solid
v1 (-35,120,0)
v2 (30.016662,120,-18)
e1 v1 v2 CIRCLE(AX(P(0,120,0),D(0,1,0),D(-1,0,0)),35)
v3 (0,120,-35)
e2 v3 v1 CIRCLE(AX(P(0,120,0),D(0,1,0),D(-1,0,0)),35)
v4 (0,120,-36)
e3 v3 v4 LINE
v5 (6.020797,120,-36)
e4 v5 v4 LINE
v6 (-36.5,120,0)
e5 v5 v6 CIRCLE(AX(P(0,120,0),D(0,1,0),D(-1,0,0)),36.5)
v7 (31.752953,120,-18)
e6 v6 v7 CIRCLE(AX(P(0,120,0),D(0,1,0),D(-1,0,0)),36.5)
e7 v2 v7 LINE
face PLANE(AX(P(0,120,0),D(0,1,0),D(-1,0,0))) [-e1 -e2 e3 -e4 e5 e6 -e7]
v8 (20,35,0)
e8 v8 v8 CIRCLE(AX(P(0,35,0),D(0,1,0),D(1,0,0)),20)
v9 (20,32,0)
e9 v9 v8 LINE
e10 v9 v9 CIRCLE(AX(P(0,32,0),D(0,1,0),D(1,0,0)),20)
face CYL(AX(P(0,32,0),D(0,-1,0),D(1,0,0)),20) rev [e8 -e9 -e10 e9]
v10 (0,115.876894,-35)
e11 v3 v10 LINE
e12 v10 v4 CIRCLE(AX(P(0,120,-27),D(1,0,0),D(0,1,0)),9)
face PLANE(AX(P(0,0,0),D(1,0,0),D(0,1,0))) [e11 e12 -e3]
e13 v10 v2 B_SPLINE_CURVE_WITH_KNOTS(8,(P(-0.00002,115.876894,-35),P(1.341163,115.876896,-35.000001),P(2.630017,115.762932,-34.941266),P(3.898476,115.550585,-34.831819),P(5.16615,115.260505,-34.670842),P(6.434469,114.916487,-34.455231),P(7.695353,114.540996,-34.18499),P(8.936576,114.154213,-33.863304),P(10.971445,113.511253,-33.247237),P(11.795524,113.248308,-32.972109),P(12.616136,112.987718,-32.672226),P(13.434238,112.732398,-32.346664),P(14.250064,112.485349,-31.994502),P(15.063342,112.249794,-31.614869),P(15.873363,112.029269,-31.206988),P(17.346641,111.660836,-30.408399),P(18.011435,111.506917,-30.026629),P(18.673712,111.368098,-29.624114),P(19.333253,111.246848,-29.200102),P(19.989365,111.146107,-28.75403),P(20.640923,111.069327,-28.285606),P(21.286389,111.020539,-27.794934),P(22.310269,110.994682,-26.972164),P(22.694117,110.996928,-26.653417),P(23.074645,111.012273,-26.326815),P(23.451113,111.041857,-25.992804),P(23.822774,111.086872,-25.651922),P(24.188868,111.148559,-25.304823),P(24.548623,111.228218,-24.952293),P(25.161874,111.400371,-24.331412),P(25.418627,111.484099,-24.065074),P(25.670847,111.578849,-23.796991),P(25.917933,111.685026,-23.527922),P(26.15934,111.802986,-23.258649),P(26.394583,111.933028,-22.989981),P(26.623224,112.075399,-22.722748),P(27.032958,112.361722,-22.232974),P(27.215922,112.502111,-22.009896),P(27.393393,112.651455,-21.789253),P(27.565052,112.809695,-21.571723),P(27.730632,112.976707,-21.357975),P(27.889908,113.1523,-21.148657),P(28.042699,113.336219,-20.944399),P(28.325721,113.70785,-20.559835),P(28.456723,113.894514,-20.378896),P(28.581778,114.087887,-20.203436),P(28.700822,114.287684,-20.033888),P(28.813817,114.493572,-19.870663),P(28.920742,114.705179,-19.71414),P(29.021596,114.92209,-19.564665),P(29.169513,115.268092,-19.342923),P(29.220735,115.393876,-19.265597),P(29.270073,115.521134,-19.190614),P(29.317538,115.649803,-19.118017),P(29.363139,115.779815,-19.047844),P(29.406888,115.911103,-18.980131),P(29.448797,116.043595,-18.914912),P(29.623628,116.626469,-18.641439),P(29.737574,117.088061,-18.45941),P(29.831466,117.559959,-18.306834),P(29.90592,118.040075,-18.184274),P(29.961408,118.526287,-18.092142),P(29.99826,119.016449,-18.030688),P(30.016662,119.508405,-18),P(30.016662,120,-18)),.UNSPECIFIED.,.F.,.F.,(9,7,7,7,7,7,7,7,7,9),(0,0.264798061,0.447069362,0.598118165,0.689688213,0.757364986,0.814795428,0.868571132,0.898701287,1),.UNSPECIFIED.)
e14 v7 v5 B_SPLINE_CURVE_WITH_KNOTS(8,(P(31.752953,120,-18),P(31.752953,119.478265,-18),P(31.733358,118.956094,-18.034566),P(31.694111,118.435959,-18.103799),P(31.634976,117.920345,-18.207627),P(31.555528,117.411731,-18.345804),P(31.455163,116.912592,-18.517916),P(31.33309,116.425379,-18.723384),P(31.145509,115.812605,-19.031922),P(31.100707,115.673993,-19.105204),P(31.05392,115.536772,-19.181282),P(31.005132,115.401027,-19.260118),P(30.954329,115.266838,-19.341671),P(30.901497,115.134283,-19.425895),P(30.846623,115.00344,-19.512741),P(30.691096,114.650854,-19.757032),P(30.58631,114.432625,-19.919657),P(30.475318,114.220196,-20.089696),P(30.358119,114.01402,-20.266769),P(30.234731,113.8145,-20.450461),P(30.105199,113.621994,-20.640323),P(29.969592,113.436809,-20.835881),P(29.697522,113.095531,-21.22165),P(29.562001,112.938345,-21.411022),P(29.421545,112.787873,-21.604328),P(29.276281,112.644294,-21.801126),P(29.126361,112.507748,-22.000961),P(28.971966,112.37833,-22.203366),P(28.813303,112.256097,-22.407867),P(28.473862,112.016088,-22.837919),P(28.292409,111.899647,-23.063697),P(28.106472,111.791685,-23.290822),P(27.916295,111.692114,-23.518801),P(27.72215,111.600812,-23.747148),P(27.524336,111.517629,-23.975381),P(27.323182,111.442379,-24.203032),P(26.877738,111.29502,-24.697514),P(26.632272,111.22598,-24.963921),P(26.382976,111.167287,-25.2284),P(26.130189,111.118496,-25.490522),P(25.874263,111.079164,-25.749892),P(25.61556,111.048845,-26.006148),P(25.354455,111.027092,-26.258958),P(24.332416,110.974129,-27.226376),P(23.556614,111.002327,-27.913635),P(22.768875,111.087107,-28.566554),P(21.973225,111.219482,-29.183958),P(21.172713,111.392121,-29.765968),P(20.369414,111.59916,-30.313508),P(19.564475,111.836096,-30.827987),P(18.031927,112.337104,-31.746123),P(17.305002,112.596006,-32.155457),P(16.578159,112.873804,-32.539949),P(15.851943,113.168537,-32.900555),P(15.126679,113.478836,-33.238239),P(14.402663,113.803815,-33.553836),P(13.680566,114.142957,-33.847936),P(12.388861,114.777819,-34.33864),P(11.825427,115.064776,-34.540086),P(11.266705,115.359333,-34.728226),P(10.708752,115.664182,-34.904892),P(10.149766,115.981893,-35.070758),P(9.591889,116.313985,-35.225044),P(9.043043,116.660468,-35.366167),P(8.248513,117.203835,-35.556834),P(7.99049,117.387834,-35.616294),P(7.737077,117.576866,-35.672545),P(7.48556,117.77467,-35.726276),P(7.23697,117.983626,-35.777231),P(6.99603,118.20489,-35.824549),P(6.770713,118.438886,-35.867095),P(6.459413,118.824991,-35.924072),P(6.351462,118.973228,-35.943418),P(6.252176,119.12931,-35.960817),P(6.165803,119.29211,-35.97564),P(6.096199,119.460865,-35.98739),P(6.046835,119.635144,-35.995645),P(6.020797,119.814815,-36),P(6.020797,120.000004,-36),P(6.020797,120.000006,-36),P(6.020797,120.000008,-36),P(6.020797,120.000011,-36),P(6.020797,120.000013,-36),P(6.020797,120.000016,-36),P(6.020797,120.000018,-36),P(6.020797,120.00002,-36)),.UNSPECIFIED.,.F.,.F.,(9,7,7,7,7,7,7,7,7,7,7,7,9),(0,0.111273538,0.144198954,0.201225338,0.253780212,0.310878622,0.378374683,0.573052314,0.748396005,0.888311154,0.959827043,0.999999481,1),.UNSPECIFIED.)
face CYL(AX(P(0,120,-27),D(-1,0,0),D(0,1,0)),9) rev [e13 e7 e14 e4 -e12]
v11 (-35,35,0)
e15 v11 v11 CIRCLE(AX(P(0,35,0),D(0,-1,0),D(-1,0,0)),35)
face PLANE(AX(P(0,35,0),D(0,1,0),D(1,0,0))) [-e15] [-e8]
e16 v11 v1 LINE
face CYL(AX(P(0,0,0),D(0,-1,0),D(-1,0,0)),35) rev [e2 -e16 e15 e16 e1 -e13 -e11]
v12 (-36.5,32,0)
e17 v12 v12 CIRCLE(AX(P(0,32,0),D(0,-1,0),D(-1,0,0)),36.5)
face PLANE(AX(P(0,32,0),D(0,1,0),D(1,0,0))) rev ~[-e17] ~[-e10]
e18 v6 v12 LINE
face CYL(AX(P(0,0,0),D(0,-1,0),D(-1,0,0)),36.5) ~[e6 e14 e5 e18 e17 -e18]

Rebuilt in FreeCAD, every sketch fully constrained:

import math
import FreeCAD as App
import Part
import Sketcher
from FreeCAD import Vector

doc = App.newDocument("Part")
body = doc.addObject("PartDesign::Body", "Body")

sketch1 = doc.addObject("Sketcher::SketchObject", "Sketch")
body.addObject(sketch1)
sketch1.AttachmentSupport = (doc.XZ_Plane, [""])
sketch1.MapMode = "FlatFace"
sketch1.addGeometry(Part.Circle(Vector(0, 0, 0), Vector(0, 0, 1), 36), False)
sketch1.addConstraint([
    Sketcher.Constraint("Coincident", 0, 3, -1, 1),
    Sketcher.Constraint("Diameter", 0, 73.0),
])
pad1 = doc.addObject("PartDesign::Pad", "Pad")
body.addObject(pad1)
pad1.Profile = sketch1
pad1.Length = 3
pad1.Reversed = True

sketch2 = doc.addObject("Sketcher::SketchObject", "Sketch001")
body.addObject(sketch2)
sketch2.AttachmentSupport = (doc.XZ_Plane, [""])
sketch2.MapMode = "FlatFace"
sketch2.addGeometry([
    Part.Circle(Vector(0, 0, 0), Vector(0, 0, 1), 36),
    Part.Circle(Vector(0, 0, 0), Vector(0, 0, 1), 35),
], False)
sketch2.addConstraint([
    Sketcher.Constraint("Coincident", 0, 3, -1, 1),
    Sketcher.Constraint("Coincident", 1, 3, -1, 1),
    Sketcher.Constraint("Diameter", 0, 73.0),
    Sketcher.Constraint("Diameter", 1, 70.0),
])
pad2 = doc.addObject("PartDesign::Pad", "Pad001")
body.addObject(pad2)
pad2.Profile = sketch2
pad2.Length = 120
pad2.Reversed = True

sketch3 = doc.addObject("Sketcher::SketchObject", "Sketch002")
body.addObject(sketch3)
sketch3.AttachmentSupport = (doc.XZ_Plane, [""])
sketch3.MapMode = "FlatFace"
sketch3.AttachmentOffset = App.Placement(Vector(0, 0, -3), App.Rotation())
sketch3.addGeometry([
    Part.LineSegment(Vector(25, 25, 0), Vector(25, -25, 0)),
    Part.LineSegment(Vector(25, -25, 0), Vector(-25, -25, 0)),
    Part.LineSegment(Vector(-25, -25, 0), Vector(-25, 25, 0)),
    Part.LineSegment(Vector(-25, 25, 0), Vector(25, 25, 0)),
], False)
sketch3.addConstraint([
    Sketcher.Constraint("Coincident", 0, 2, 1, 1),
    Sketcher.Constraint("Coincident", 1, 2, 2, 1),
    Sketcher.Constraint("Coincident", 2, 2, 3, 1),
    Sketcher.Constraint("Coincident", 3, 2, 0, 1),
    Sketcher.Constraint("Vertical", 0),
    Sketcher.Constraint("Horizontal", 1),
    Sketcher.Constraint("Vertical", 2),
    Sketcher.Constraint("Horizontal", 3),
    Sketcher.Constraint("Symmetric", 0, 2, 2, 2, -1, 1),
    Sketcher.Constraint("Equal", 3, 0),
    Sketcher.Constraint("DistanceX", 1, 2, 1, 1, 49.4974),
])
pad3 = doc.addObject("PartDesign::Pad", "Pad002")
body.addObject(pad3)
pad3.Profile = sketch3
pad3.Length = 2
pad3.Reversed = True

sketch4 = doc.addObject("Sketcher::SketchObject", "Sketch003")
body.addObject(sketch4)
sketch4.AttachmentSupport = (doc.XZ_Plane, [""])
sketch4.MapMode = "FlatFace"
sketch4.AttachmentOffset = App.Placement(Vector(0, 0, -5), App.Rotation())
sketch4.addGeometry([
    Part.LineSegment(Vector(-21.1, 23.1, 0), Vector(21.1, 23.1, 0)),
    Part.ArcOfCircle(Part.Circle(Vector(21.1, 21.1, 0), Vector(0, 0, 1), 2), math.radians(0), math.radians(90)),
    Part.LineSegment(Vector(23.1, 21.1, 0), Vector(23.1, -21.1, 0)),
    Part.ArcOfCircle(Part.Circle(Vector(21.1, -21.1, 0), Vector(0, 0, 1), 2), math.radians(-90), math.radians(0)),
    Part.LineSegment(Vector(21.1, -23.1, 0), Vector(-21.1, -23.1, 0)),
    Part.ArcOfCircle(Part.Circle(Vector(-21.1, -21.1, 0), Vector(0, 0, 1), 2), math.radians(180), math.radians(270)),
    Part.LineSegment(Vector(-23.1, -21.1, 0), Vector(-23.1, 21.1, 0)),
    Part.ArcOfCircle(Part.Circle(Vector(-21.1, 21.1, 0), Vector(0, 0, 1), 2), math.radians(90), math.radians(180)),
], False)
sketch4.addConstraint([
    Sketcher.Constraint("Tangent", 0, 2, 1, 2),
    Sketcher.Constraint("Tangent", 1, 1, 2, 1),
    Sketcher.Constraint("Tangent", 2, 2, 3, 2),
    Sketcher.Constraint("Tangent", 3, 1, 4, 1),
    Sketcher.Constraint("Tangent", 4, 2, 5, 2),
    Sketcher.Constraint("Tangent", 5, 1, 6, 1),
    Sketcher.Constraint("Tangent", 6, 2, 7, 2),
    Sketcher.Constraint("Tangent", 7, 1, 0, 1),
    Sketcher.Constraint("Horizontal", 0),
    Sketcher.Constraint("Vertical", 2),
    Sketcher.Constraint("Horizontal", 4),
    Sketcher.Constraint("Vertical", 6),
    Sketcher.Constraint("Equal", 1, 3),
    Sketcher.Constraint("Equal", 3, 5),
    Sketcher.Constraint("Equal", 5, 7),
    Sketcher.Constraint("Symmetric", 1, 3, 5, 3, -1, 1),
    Sketcher.Constraint("Equal", 4, 2),
    Sketcher.Constraint("Radius", 1, 2.0),
    Sketcher.Constraint("DistanceX", 0, 1, 0, 2, 42.2),
])
pocket1 = doc.addObject("PartDesign::Pocket", "Pocket")
body.addObject(pocket1)
pocket1.Profile = sketch4
pocket1.Length = 2
pocket1.Reversed = True

sketch5 = doc.addObject("Sketcher::SketchObject", "Sketch004")
body.addObject(sketch5)
sketch5.AttachmentSupport = (doc.YZ_Plane, [""])
sketch5.MapMode = "FlatFace"
sketch5.addGeometry(Part.Circle(Vector(120, -27, 0), Vector(0, 0, 1), 9), False)
sketch5.addConstraint([
    Sketcher.Constraint("Diameter", 0, 18.0),
    Sketcher.Constraint("DistanceX", -1, 1, 0, 3, 120.0),
    Sketcher.Constraint("DistanceY", 0, 3, -1, 1, 27.0),
])
pocket2 = doc.addObject("PartDesign::Pocket", "Pocket001")
body.addObject(pocket2)
pocket2.Profile = sketch5
pocket2.Type = "ThroughAll"
pocket2.Reversed = True

sketch6 = doc.addObject("Sketcher::SketchObject", "Sketch005")
body.addObject(sketch6)
sketch6.AttachmentSupport = (doc.XZ_Plane, [""])
sketch6.MapMode = "FlatFace"
sketch6.addGeometry([
    Part.ArcOfCircle(Part.Circle(Vector(0, 0, 0), Vector(0, 0, 1), 36.5), math.radians(-82.13), math.radians(-77.34)),
    Part.LineSegment(Vector(5, -36.2, 0), Vector(5, -42.4, 0)),
    Part.ArcOfCircle(Part.Circle(Vector(0, -42.4, 0), Vector(0, 0, 1), 5), math.radians(180), math.radians(360)),
    Part.LineSegment(Vector(-5, -42.4, 0), Vector(-5, -36.2, 0)),
    Part.ArcOfCircle(Part.Circle(Vector(0, 0, 0), Vector(0, 0, 1), 36.5), math.radians(-102.66), math.radians(-97.87)),
    Part.LineSegment(Vector(-8, -35.6, 0), Vector(-8, -42.4, 0)),
    Part.ArcOfCircle(Part.Circle(Vector(0, -42.4, 0), Vector(0, 0, 1), 8), math.radians(180), math.radians(360)),
    Part.LineSegment(Vector(8, -42.4, 0), Vector(8, -35.6, 0)),
], False)
sketch6.addConstraint([
    Sketcher.Constraint("Coincident", 0, 1, 1, 1),
    Sketcher.Constraint("Tangent", 1, 2, 2, 2),
    Sketcher.Constraint("Tangent", 2, 1, 3, 1),
    Sketcher.Constraint("Coincident", 3, 2, 4, 2),
    Sketcher.Constraint("Coincident", 4, 1, 5, 1),
    Sketcher.Constraint("Tangent", 5, 2, 6, 1),
    Sketcher.Constraint("Tangent", 6, 2, 7, 1),
    Sketcher.Constraint("Coincident", 7, 2, 0, 2),
    Sketcher.Constraint("Vertical", 1),
    Sketcher.Constraint("Vertical", 3),
    Sketcher.Constraint("Vertical", 5),
    Sketcher.Constraint("Vertical", 7),
    Sketcher.Constraint("Coincident", 0, 3, -1, 1),
    Sketcher.Constraint("Coincident", 4, 3, -1, 1),
    Sketcher.Constraint("Coincident", 6, 3, 2, 3),
    Sketcher.Constraint("Equal", 0, 4),
    Sketcher.Constraint("PointOnObject", 2, 3, -2),
    Sketcher.Constraint("Radius", 2, 5.0),
    Sketcher.Constraint("Radius", 6, 8.0),
    Sketcher.Constraint("Radius", 0, 36.5),
    Sketcher.Constraint("DistanceY", 5, 2, 5, 1, 6.8),
])
pad4 = doc.addObject("PartDesign::Pad", "Pad003")
body.addObject(pad4)
pad4.Profile = sketch6
pad4.Length = 6
pad4.Reversed = True

sketch7 = doc.addObject("Sketcher::SketchObject", "Sketch006")
body.addObject(sketch7)
sketch7.AttachmentSupport = (doc.YZ_Plane, [""])
sketch7.MapMode = "FlatFace"
sketch7.AttachmentOffset = App.Placement(Vector(0, 0, 36.5), App.Rotation())
sketch7.addGeometry([
    Part.LineSegment(Vector(22, 4, 0), Vector(8, 4, 0)),
    Part.LineSegment(Vector(8, 4, 0), Vector(8, -4, 0)),
    Part.LineSegment(Vector(8, -4, 0), Vector(22, -4, 0)),
    Part.LineSegment(Vector(22, -4, 0), Vector(22, 4, 0)),
], False)
sketch7.addConstraint([
    Sketcher.Constraint("Coincident", 0, 2, 1, 1),
    Sketcher.Constraint("Coincident", 1, 2, 2, 1),
    Sketcher.Constraint("Coincident", 2, 2, 3, 1),
    Sketcher.Constraint("Coincident", 3, 2, 0, 1),
    Sketcher.Constraint("Horizontal", 0),
    Sketcher.Constraint("Vertical", 1),
    Sketcher.Constraint("Horizontal", 2),
    Sketcher.Constraint("Vertical", 3),
    Sketcher.Constraint("DistanceX", 0, 2, 0, 1, 13.1),
    Sketcher.Constraint("DistanceY", 1, 2, 1, 1, 8.5),
    Sketcher.Constraint("DistanceX", -1, 1, 0, 2, 8.45),
    Sketcher.Constraint("DistanceY", -1, 1, 0, 2, 4.25),
])
pocket3 = doc.addObject("PartDesign::Pocket", "Pocket002")
body.addObject(pocket3)
pocket3.Profile = sketch7
pocket3.Length = 3

sketch8 = doc.addObject("Sketcher::SketchObject", "Sketch007")
body.addObject(sketch8)
sketch8.AttachmentSupport = (doc.YZ_Plane, [""])
sketch8.MapMode = "FlatFace"
sketch8.AttachmentOffset = App.Placement(Vector(0, 0, 36.5), App.Rotation())
sketch8.addGeometry([
    Part.LineSegment(Vector(22, 5, 0), Vector(8, 5, 0)),
    Part.LineSegment(Vector(8, 5, 0), Vector(8, -5, 0)),
    Part.LineSegment(Vector(8, -5, 0), Vector(22, -5, 0)),
    Part.LineSegment(Vector(22, -5, 0), Vector(22, 5, 0)),
    Part.LineSegment(Vector(8, -4, 0), Vector(8, 4, 0)),
    Part.LineSegment(Vector(8, 4, 0), Vector(22, 4, 0)),
    Part.LineSegment(Vector(22, 4, 0), Vector(22, -4, 0)),
    Part.LineSegment(Vector(22, -4, 0), Vector(8, -4, 0)),
], False)
sketch8.addConstraint([
    Sketcher.Constraint("Coincident", 0, 2, 1, 1),
    Sketcher.Constraint("Coincident", 1, 2, 2, 1),
    Sketcher.Constraint("Coincident", 2, 2, 3, 1),
    Sketcher.Constraint("Coincident", 3, 2, 0, 1),
    Sketcher.Constraint("Coincident", 4, 2, 5, 1),
    Sketcher.Constraint("Coincident", 5, 2, 6, 1),
    Sketcher.Constraint("Coincident", 6, 2, 7, 1),
    Sketcher.Constraint("Coincident", 7, 2, 4, 1),
    Sketcher.Constraint("Horizontal", 0),
    Sketcher.Constraint("Vertical", 1),
    Sketcher.Constraint("Horizontal", 2),
    Sketcher.Constraint("Vertical", 3),
    Sketcher.Constraint("Vertical", 4),
    Sketcher.Constraint("Horizontal", 5),
    Sketcher.Constraint("Vertical", 6),
    Sketcher.Constraint("Horizontal", 7),
    Sketcher.Constraint("DistanceX", 0, 2, 0, 1, 15.0),
    Sketcher.Constraint("DistanceX", 5, 1, 5, 2, 13.1),
    Sketcher.Constraint("DistanceY", 1, 2, 1, 1, 10.5),
    Sketcher.Constraint("DistanceY", 4, 1, 4, 2, 8.5),
    Sketcher.Constraint("DistanceY", 4, 2, 0, 2, 1.0),
    Sketcher.Constraint("DistanceX", -1, 1, 0, 2, 7.5),
    Sketcher.Constraint("DistanceY", -1, 1, 0, 2, 5.25),
    Sketcher.Constraint("DistanceX", -1, 1, 4, 2, 8.45),
])
pocket4 = doc.addObject("PartDesign::Pocket", "Pocket003")
body.addObject(pocket4)
pocket4.Profile = sketch8
pocket4.Length = 1

sketch9 = doc.addObject("Sketcher::SketchObject", "Sketch008")
body.addObject(sketch9)
sketch9.AttachmentSupport = (doc.XZ_Plane, [""])
sketch9.MapMode = "FlatFace"
sketch9.AttachmentOffset = App.Placement(Vector(0, 0, -32), App.Rotation())
sketch9.addGeometry([
    Part.Circle(Vector(0, 0, 0), Vector(0, 0, 1), 35),
    Part.Circle(Vector(0, 0, 0), Vector(0, 0, 1), 20),
], False)
sketch9.addConstraint([
    Sketcher.Constraint("Coincident", 0, 3, -1, 1),
    Sketcher.Constraint("Coincident", 1, 3, -1, 1),
    Sketcher.Constraint("Diameter", 1, 40.0),
    Sketcher.Constraint("Diameter", 0, 70.0),
])
pad5 = doc.addObject("PartDesign::Pad", "Pad004")
body.addObject(pad5)
pad5.Profile = sketch9
pad5.Length = 3
pad5.Reversed = True

sketch10 = doc.addObject("Sketcher::SketchObject", "Sketch009")
body.addObject(sketch10)
sketch10.AttachmentSupport = (doc.XZ_Plane, [""])
sketch10.MapMode = "FlatFace"
sketch10.AttachmentOffset = App.Placement(Vector(0, 0, -32), App.Rotation())
sketch10.addGeometry(Part.Circle(Vector(0, 0, 0), Vector(0, 0, 1), 51), False)
sketch10.addConstraint([
    Sketcher.Constraint("Coincident", 0, 3, -1, 1),
    Sketcher.Constraint("Diameter", 0, 101.1102),
])
pocket5 = doc.addObject("PartDesign::Pocket", "Pocket004")
body.addObject(pocket5)
pocket5.Profile = sketch10
pocket5.Type = "ThroughAll"
pocket5.Reversed = True

doc.recompute()
